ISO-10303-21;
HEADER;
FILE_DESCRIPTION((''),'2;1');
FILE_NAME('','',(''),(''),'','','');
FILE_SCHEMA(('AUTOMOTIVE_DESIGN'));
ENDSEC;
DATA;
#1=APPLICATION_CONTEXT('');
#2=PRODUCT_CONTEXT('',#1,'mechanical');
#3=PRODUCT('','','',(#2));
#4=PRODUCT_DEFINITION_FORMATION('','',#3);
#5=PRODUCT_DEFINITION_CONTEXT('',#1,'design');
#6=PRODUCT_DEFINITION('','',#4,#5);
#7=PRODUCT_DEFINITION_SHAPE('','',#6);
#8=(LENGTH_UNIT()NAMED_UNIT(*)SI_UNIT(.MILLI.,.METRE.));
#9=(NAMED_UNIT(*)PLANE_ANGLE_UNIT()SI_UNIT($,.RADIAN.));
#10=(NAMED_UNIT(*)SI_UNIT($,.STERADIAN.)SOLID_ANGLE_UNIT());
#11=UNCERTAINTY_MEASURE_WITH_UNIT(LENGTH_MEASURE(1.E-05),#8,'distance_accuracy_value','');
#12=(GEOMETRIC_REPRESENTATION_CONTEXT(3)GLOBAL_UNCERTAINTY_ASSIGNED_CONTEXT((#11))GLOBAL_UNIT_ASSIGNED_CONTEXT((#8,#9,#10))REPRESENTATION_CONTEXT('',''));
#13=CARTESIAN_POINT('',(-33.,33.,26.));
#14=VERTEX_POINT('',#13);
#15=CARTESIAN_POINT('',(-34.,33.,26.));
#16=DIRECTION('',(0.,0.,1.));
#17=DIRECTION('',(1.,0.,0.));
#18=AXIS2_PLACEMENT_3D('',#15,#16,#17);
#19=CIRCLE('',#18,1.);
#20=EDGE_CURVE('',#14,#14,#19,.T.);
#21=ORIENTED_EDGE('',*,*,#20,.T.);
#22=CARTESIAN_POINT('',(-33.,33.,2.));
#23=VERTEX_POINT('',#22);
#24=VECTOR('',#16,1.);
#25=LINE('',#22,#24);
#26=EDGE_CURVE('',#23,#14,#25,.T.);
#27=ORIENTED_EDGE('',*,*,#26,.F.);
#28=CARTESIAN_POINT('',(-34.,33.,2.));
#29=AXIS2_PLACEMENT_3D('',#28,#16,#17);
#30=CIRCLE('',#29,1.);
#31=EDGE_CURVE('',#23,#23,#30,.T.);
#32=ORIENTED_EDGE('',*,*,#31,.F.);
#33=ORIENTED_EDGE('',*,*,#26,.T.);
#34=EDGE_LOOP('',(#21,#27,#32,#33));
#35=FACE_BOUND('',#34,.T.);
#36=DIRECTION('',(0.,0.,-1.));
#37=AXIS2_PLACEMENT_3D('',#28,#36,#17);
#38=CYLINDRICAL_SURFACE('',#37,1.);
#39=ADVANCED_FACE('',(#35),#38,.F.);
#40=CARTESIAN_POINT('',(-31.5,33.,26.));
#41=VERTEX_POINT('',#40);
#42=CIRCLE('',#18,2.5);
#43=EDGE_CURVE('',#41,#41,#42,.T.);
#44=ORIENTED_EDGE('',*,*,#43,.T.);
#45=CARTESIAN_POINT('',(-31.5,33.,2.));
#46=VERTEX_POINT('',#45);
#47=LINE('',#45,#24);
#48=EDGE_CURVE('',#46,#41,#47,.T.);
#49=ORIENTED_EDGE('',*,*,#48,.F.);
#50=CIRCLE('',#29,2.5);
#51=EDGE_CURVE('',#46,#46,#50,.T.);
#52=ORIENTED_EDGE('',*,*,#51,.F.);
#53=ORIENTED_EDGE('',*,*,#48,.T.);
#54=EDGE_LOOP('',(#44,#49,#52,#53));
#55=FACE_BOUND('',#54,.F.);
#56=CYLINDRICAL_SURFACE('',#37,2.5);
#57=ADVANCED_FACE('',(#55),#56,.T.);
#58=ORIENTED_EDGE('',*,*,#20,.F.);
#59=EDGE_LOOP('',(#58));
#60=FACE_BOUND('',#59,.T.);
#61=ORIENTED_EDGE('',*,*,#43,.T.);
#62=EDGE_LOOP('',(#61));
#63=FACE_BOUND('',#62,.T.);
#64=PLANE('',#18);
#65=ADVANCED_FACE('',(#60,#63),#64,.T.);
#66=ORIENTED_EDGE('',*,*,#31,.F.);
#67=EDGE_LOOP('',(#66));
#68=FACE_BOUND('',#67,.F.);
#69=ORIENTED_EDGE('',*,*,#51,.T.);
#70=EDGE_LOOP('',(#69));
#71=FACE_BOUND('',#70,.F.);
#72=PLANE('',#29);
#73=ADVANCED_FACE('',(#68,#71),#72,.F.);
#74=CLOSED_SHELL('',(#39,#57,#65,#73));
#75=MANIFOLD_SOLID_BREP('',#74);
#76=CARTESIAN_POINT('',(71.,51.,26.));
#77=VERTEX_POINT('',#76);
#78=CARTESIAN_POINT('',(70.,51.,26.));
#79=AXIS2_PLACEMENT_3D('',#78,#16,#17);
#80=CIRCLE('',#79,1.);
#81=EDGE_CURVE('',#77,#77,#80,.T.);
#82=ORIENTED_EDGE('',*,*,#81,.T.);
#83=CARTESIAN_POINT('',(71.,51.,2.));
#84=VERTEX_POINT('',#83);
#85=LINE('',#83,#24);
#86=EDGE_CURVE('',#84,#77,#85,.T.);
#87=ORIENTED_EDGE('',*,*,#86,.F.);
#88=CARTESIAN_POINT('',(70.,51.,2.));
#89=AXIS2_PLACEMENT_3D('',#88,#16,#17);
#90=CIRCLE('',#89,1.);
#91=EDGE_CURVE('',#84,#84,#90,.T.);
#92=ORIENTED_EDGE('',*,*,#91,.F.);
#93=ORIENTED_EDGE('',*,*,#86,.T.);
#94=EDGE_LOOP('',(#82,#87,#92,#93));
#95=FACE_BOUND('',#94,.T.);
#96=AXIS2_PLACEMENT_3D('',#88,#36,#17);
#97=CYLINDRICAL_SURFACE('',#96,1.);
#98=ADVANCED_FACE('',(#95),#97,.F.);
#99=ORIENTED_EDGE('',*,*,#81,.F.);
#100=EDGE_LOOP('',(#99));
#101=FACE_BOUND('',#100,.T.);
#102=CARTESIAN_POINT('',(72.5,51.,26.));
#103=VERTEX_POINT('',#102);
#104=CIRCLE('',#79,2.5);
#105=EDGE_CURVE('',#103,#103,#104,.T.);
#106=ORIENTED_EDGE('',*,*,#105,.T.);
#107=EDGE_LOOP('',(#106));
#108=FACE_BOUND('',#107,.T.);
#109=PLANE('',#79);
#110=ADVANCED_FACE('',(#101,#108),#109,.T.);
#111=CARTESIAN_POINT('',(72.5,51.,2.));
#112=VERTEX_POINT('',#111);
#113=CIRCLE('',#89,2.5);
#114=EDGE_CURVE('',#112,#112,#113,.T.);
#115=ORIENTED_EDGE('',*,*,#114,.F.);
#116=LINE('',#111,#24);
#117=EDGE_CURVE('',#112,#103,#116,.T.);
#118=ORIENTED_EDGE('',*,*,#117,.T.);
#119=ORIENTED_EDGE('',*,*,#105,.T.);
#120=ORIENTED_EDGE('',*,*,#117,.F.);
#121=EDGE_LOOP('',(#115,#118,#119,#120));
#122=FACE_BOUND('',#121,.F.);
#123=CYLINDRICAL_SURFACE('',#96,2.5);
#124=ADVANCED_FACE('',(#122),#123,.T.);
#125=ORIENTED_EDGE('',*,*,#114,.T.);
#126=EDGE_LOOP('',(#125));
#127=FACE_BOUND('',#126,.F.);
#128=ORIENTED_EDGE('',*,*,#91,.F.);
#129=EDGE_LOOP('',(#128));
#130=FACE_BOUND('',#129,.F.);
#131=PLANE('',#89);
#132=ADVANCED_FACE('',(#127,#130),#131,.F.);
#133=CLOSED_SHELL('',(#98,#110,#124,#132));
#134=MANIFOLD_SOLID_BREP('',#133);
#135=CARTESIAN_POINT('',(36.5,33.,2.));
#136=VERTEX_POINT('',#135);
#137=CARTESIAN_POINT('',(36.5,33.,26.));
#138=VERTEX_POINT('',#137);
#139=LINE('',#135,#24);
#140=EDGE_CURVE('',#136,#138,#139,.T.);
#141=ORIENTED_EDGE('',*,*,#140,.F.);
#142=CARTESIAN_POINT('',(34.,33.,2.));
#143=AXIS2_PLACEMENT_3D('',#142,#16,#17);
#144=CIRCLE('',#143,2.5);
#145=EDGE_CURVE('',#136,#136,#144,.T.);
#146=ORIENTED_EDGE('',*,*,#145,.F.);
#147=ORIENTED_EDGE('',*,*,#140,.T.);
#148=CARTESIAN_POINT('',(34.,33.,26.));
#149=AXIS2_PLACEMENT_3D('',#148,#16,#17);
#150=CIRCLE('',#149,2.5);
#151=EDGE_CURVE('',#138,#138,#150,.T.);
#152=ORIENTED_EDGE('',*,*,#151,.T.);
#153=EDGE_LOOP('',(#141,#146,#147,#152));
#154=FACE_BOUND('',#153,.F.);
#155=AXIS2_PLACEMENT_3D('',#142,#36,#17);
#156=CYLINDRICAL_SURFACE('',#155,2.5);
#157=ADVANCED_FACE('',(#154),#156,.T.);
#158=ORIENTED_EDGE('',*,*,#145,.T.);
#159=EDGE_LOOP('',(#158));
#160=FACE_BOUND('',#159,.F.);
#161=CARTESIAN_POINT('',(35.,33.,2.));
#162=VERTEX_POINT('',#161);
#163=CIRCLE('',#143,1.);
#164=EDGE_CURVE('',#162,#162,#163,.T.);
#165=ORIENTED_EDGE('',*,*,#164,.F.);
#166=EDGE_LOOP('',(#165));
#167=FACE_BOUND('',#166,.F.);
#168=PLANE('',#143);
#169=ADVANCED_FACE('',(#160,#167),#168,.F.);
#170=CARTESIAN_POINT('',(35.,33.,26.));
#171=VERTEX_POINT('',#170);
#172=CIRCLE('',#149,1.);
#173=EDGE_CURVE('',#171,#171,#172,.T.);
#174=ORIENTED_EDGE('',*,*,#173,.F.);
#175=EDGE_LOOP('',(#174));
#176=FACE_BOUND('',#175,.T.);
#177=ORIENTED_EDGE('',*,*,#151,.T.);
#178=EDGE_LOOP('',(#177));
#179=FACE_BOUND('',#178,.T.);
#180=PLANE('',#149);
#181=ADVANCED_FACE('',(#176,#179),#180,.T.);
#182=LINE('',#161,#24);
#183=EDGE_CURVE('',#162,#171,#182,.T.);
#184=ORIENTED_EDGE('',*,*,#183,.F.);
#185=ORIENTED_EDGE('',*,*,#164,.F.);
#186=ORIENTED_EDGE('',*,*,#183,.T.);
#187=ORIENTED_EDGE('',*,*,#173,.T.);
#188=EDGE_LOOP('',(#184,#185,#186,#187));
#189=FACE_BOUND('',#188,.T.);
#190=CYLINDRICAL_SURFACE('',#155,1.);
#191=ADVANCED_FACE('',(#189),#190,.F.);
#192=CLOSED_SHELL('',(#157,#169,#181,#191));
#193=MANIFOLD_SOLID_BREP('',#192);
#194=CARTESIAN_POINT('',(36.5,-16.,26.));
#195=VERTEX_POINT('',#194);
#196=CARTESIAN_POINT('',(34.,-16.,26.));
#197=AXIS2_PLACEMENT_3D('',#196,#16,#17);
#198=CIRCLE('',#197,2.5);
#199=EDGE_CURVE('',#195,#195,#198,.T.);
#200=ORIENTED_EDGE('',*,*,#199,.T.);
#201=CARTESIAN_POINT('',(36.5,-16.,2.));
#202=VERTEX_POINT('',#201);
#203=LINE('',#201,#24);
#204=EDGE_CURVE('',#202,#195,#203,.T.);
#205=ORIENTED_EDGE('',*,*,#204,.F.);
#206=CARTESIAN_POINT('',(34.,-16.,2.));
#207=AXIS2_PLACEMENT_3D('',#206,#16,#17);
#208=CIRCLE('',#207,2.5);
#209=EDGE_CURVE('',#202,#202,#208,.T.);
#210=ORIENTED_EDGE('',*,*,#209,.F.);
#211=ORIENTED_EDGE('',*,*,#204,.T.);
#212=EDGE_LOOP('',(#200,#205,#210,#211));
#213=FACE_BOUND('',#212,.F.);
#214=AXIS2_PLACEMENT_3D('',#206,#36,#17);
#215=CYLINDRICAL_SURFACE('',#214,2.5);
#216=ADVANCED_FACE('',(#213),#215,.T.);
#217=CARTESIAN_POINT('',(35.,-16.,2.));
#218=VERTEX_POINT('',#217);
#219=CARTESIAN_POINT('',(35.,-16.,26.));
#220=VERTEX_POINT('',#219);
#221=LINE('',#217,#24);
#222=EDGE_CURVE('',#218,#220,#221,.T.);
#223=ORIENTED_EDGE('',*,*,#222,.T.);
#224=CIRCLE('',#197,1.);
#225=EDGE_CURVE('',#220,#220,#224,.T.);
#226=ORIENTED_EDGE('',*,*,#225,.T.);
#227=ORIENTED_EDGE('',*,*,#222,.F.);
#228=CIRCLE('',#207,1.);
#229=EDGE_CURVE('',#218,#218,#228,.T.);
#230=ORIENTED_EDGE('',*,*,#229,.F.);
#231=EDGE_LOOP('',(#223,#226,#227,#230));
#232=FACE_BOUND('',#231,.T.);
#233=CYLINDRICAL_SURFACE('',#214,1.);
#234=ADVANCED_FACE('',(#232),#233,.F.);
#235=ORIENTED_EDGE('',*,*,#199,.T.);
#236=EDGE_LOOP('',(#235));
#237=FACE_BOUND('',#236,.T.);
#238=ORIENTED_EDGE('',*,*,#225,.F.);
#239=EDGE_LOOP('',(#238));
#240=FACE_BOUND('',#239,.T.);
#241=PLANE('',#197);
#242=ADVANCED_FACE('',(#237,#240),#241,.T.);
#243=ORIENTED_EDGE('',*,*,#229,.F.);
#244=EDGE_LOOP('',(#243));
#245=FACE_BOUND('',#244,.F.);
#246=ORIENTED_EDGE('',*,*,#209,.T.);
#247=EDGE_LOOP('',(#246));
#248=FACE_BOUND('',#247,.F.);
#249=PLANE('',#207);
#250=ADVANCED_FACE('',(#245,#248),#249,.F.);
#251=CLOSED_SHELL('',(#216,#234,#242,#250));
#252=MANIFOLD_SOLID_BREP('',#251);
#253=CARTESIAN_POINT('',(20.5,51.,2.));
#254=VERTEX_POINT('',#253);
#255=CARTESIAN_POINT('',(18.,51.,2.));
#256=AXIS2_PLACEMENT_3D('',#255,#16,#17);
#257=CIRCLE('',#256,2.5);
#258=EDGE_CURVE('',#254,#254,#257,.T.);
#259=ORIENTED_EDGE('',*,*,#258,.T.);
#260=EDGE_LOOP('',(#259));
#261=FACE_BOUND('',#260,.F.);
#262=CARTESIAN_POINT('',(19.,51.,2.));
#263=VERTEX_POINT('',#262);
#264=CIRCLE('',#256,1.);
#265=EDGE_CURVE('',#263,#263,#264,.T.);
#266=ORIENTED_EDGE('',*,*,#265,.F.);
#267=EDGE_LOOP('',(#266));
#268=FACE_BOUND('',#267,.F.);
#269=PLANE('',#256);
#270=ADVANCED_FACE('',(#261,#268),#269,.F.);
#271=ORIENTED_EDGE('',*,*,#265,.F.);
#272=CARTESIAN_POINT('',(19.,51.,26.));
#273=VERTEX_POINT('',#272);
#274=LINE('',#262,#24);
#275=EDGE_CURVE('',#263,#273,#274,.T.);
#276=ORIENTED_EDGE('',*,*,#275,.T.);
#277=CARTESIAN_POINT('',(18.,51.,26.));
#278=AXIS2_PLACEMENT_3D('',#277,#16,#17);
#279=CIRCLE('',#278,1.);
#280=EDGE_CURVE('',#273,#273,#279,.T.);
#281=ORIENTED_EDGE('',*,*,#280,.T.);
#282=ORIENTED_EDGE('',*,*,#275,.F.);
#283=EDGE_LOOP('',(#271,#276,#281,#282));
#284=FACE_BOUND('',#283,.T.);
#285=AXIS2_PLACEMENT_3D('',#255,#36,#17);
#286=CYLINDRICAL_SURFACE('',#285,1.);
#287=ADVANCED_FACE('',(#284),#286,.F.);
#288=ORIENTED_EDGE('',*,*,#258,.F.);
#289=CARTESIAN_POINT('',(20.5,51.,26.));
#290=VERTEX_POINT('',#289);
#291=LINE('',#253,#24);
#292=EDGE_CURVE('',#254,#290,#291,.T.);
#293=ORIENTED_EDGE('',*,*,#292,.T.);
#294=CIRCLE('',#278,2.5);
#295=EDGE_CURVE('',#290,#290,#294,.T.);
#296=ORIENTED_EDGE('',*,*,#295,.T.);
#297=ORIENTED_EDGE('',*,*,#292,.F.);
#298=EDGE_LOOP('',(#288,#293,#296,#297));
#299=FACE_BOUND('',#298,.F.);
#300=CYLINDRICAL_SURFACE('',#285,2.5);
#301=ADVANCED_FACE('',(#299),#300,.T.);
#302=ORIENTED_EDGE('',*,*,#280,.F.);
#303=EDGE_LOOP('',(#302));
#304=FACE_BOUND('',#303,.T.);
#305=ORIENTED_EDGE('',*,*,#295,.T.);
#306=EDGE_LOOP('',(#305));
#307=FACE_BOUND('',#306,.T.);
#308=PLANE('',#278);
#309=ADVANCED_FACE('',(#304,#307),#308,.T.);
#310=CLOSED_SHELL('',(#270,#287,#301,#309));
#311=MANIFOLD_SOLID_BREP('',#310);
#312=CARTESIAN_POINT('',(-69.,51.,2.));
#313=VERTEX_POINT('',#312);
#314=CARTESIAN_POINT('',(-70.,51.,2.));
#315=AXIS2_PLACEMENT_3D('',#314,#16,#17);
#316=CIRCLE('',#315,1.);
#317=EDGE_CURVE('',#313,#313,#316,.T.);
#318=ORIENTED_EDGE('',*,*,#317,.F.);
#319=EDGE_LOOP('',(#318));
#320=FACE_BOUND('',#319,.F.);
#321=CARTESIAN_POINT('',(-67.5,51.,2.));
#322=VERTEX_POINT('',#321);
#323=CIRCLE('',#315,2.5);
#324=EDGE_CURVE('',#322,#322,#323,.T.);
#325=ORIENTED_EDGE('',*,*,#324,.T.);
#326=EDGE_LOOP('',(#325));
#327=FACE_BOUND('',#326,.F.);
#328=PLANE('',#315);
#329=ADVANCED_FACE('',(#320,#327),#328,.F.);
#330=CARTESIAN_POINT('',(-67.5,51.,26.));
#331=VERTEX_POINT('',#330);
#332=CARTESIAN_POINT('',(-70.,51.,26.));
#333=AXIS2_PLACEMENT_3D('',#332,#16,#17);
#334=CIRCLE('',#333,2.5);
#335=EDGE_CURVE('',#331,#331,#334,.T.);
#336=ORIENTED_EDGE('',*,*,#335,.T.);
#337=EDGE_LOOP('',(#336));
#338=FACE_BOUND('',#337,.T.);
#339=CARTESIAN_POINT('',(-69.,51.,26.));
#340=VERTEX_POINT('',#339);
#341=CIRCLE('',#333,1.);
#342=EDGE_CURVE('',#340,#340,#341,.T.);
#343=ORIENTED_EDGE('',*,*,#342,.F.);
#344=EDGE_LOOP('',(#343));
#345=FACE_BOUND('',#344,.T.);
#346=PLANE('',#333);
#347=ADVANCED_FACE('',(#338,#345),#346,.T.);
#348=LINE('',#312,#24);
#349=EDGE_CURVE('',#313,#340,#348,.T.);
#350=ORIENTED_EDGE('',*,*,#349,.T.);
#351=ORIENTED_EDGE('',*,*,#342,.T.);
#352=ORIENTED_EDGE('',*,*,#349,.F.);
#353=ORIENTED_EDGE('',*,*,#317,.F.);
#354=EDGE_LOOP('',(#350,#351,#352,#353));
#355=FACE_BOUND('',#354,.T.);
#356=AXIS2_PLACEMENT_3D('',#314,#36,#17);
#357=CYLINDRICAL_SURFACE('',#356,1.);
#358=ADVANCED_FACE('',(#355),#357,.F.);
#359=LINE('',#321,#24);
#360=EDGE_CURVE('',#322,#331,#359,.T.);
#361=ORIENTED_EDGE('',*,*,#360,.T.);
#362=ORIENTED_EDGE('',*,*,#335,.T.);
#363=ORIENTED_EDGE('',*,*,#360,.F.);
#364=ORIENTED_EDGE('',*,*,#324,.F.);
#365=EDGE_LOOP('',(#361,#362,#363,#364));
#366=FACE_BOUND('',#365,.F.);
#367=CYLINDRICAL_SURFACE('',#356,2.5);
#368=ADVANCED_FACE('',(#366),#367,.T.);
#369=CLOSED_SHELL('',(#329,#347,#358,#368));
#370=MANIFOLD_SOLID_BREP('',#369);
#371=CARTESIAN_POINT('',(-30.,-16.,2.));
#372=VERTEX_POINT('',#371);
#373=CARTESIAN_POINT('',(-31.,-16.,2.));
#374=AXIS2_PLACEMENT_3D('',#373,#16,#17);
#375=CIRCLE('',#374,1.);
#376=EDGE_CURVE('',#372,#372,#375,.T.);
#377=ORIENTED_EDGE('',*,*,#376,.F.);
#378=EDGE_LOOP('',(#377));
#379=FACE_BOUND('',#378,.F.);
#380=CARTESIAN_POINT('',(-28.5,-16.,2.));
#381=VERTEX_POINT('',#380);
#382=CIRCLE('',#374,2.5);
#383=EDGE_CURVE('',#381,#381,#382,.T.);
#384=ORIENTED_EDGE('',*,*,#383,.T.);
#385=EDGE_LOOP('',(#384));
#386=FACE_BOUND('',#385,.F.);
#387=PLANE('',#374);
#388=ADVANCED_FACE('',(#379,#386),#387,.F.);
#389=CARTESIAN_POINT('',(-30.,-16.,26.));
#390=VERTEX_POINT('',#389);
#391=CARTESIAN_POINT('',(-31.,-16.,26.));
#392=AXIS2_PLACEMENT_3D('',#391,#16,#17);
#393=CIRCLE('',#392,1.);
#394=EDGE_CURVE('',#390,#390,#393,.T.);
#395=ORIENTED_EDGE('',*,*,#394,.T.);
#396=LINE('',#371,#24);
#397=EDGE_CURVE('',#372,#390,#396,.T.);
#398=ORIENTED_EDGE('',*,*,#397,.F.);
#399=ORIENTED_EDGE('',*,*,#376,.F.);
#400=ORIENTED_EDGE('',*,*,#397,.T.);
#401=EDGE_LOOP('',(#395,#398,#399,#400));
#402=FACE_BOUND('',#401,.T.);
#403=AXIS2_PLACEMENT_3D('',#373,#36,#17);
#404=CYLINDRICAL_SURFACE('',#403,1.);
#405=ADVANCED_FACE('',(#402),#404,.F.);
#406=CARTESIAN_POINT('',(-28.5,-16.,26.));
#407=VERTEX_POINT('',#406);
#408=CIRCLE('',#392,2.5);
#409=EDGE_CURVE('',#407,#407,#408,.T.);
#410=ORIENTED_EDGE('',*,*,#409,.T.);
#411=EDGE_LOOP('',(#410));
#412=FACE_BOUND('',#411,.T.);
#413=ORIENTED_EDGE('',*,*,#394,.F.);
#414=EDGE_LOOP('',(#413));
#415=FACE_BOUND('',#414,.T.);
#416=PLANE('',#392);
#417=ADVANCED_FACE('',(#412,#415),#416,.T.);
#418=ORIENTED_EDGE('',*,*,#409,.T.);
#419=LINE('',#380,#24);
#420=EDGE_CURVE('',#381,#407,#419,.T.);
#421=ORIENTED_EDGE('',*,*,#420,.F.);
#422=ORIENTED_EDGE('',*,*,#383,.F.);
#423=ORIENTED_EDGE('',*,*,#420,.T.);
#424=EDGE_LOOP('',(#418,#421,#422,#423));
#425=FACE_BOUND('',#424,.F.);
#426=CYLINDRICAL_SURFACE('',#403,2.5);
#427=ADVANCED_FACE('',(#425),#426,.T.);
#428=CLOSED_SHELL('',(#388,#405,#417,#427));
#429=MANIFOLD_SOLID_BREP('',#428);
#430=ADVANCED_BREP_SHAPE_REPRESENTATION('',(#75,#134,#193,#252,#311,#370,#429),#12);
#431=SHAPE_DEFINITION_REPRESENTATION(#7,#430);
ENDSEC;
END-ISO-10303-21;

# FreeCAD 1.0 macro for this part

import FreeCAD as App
import Part
import Sketcher
Q = App.Units.Quantity

doc = App.newDocument("Part")
body = doc.addObject("PartDesign::Body", "Body")

# Sketch on XY plane
sketch1 = body.newObject("Sketcher::SketchObject", "Sketch")
sketch1.AttachmentSupport = (doc.getObject("XY_Plane"), [""])
sketch1.MapMode = "FlatFace"
sketch1.AttachmentOffset = App.Placement(App.Vector(0, 0, 2), App.Rotation())
sketch1.addGeometry([
    Part.Circle(App.Vector(34, -16, 0), App.Vector(0, 0, 1), 2.5),
    Part.Circle(App.Vector(34, -16, 0), App.Vector(0, 0, 1), 1),
], False)
sketch1.addConstraint([
    Sketcher.Constraint("Coincident", 1, 3, 0, 3),
    Sketcher.Constraint("Diameter", 0, Q("5 mm")),
    Sketcher.Constraint("Diameter", 1, Q("2 mm")),
    Sketcher.Constraint("DistanceX", -1, 1, 0, 3, Q("34 mm")),
    Sketcher.Constraint("DistanceY", 0, 3, -1, 1, Q("16 mm")),
])
pad1 = body.newObject("PartDesign::Pad", "Pad")
pad1.Profile = sketch1
pad1.Length = 24
body2 = doc.addObject("PartDesign::Body", "Body001")

# Sketch on XY plane
sketch2 = body2.newObject("Sketcher::SketchObject", "Sketch001")
sketch2.AttachmentSupport = (doc.getObject("XY_Plane001"), [""])
sketch2.MapMode = "FlatFace"
sketch2.AttachmentOffset = App.Placement(App.Vector(0, 0, 2), App.Rotation())
sketch2.addGeometry([
    Part.Circle(App.Vector(-31, -16, 0), App.Vector(0, 0, 1), 2.5),
    Part.Circle(App.Vector(-31, -16, 0), App.Vector(0, 0, 1), 1),
], False)
sketch2.addConstraint([
    Sketcher.Constraint("Coincident", 1, 3, 0, 3),
    Sketcher.Constraint("Diameter", 0, Q("5 mm")),
    Sketcher.Constraint("Diameter", 1, Q("2 mm")),
    Sketcher.Constraint("DistanceX", 0, 3, -1, 1, Q("31 mm")),
    Sketcher.Constraint("DistanceY", 0, 3, -1, 1, Q("16 mm")),
])
pad2 = body2.newObject("PartDesign::Pad", "Pad001")
pad2.Profile = sketch2
pad2.Length = 24
body3 = doc.addObject("PartDesign::Body", "Body002")

# Sketch on XY plane
sketch3 = body3.newObject("Sketcher::SketchObject", "Sketch002")
sketch3.AttachmentSupport = (doc.getObject("XY_Plane002"), [""])
sketch3.MapMode = "FlatFace"
sketch3.AttachmentOffset = App.Placement(App.Vector(0, 0, 2), App.Rotation())
sketch3.addGeometry([
    Part.Circle(App.Vector(34, 33, 0), App.Vector(0, 0, 1), 2.5),
    Part.Circle(App.Vector(34, 33, 0), App.Vector(0, 0, 1), 1),
], False)
sketch3.addConstraint([
    Sketcher.Constraint("Coincident", 1, 3, 0, 3),
    Sketcher.Constraint("Diameter", 0, Q("5 mm")),
    Sketcher.Constraint("Diameter", 1, Q("2 mm")),
    Sketcher.Constraint("DistanceX", -1, 1, 0, 3, Q("34 mm")),
    Sketcher.Constraint("DistanceY", -1, 1, 0, 3, Q("33 mm")),
])
pad3 = body3.newObject("PartDesign::Pad", "Pad002")
pad3.Profile = sketch3
pad3.Length = 24
body4 = doc.addObject("PartDesign::Body", "Body003")

# Sketch on XY plane
sketch4 = body4.newObject("Sketcher::SketchObject", "Sketch003")
sketch4.AttachmentSupport = (doc.getObject("XY_Plane003"), [""])
sketch4.MapMode = "FlatFace"
sketch4.AttachmentOffset = App.Placement(App.Vector(0, 0, 2), App.Rotation())
sketch4.addGeometry([
    Part.Circle(App.Vector(-34, 33, 0), App.Vector(0, 0, 1), 2.5),
    Part.Circle(App.Vector(-34, 33, 0), App.Vector(0, 0, 1), 1),
], False)
sketch4.addConstraint([
    Sketcher.Constraint("Coincident", 1, 3, 0, 3),
    Sketcher.Constraint("Diameter", 0, Q("5 mm")),
    Sketcher.Constraint("Diameter", 1, Q("2 mm")),
    Sketcher.Constraint("DistanceX", 0, 3, -1, 1, Q("34 mm")),
    Sketcher.Constraint("DistanceY", -1, 1, 0, 3, Q("33 mm")),
])
pad4 = body4.newObject("PartDesign::Pad", "Pad003")
pad4.Profile = sketch4
pad4.Length = 24
body5 = doc.addObject("PartDesign::Body", "Body004")

# Sketch on XY plane
sketch5 = body5.newObject("Sketcher::SketchObject", "Sketch004")
sketch5.AttachmentSupport = (doc.getObject("XY_Plane004"), [""])
sketch5.MapMode = "FlatFace"
sketch5.AttachmentOffset = App.Placement(App.Vector(0, 0, 2), App.Rotation())
sketch5.addGeometry([
    Part.Circle(App.Vector(70, 51, 0), App.Vector(0, 0, 1), 2.5),
    Part.Circle(App.Vector(70, 51, 0), App.Vector(0, 0, 1), 1),
], False)
sketch5.addConstraint([
    Sketcher.Constraint("Coincident", 1, 3, 0, 3),
    Sketcher.Constraint("Diameter", 0, Q("5 mm")),
    Sketcher.Constraint("Diameter", 1, Q("2 mm")),
    Sketcher.Constraint("DistanceX", -1, 1, 0, 3, Q("70 mm")),
    Sketcher.Constraint("DistanceY", -1, 1, 0, 3, Q("51 mm")),
])
pad5 = body5.newObject("PartDesign::Pad", "Pad004")
pad5.Profile = sketch5
pad5.Length = 24
body6 = doc.addObject("PartDesign::Body", "Body005")

# Sketch on XY plane
sketch6 = body6.newObject("Sketcher::SketchObject", "Sketch005")
sketch6.AttachmentSupport = (doc.getObject("XY_Plane005"), [""])
sketch6.MapMode = "FlatFace"
sketch6.AttachmentOffset = App.Placement(App.Vector(0, 0, 2), App.Rotation())
sketch6.addGeometry([
    Part.Circle(App.Vector(-70, 51, 0), App.Vector(0, 0, 1), 2.5),
    Part.Circle(App.Vector(-70, 51, 0), App.Vector(0, 0, 1), 1),
], False)
sketch6.addConstraint([
    Sketcher.Constraint("Coincident", 1, 3, 0, 3),
    Sketcher.Constraint("Diameter", 0, Q("5 mm")),
    Sketcher.Constraint("Diameter", 1, Q("2 mm")),
    Sketcher.Constraint("DistanceX", 0, 3, -1, 1, Q("70 mm")),
    Sketcher.Constraint("DistanceY", -1, 1, 0, 3, Q("51 mm")),
])
pad6 = body6.newObject("PartDesign::Pad", "Pad005")
pad6.Profile = sketch6
pad6.Length = 24
body7 = doc.addObject("PartDesign::Body", "Body006")
body7.AllowCompound = True

# Sketch on XY plane
sketch7 = body7.newObject("Sketcher::SketchObject", "Sketch006")
sketch7.AttachmentSupport = (doc.getObject("XY_Plane006"), [""])
sketch7.MapMode = "FlatFace"
sketch7.AttachmentOffset = App.Placement(App.Vector(0, 0, 2), App.Rotation())
sketch7.addGeometry([
    Part.Circle(App.Vector(18, 51, 0), App.Vector(0, 0, 1), 2.5),
    Part.Circle(App.Vector(18, 51, 0), App.Vector(0, 0, 1), 1),
], False)
sketch7.addConstraint([
    Sketcher.Constraint("Coincident", 1, 3, 0, 3),
    Sketcher.Constraint("Diameter", 0, Q("5 mm")),
    Sketcher.Constraint("Diameter", 1, Q("2 mm")),
    Sketcher.Constraint("DistanceX", -1, 1, 0, 3, Q("18 mm")),
    Sketcher.Constraint("DistanceY", -1, 1, 0, 3, Q("51 mm")),
])
pad7 = body7.newObject("PartDesign::Pad", "Pad006")
pad7.Profile = sketch7
pad7.Length = 24
doc.recompute()

boolean = body7.newObject("PartDesign::Boolean", "Boolean")
boolean.Type = "Fuse"
boolean.addObjects([body])
doc.recompute()

boolean2 = body7.newObject("PartDesign::Boolean", "Boolean001")
boolean2.Type = "Fuse"
boolean2.addObjects([body2])
doc.recompute()

boolean3 = body7.newObject("PartDesign::Boolean", "Boolean002")
boolean3.Type = "Fuse"
boolean3.addObjects([body3])
doc.recompute()

boolean4 = body7.newObject("PartDesign::Boolean", "Boolean003")
boolean4.Type = "Fuse"
boolean4.addObjects([body4])
doc.recompute()

boolean5 = body7.newObject("PartDesign::Boolean", "Boolean004")
boolean5.Type = "Fuse"
boolean5.addObjects([body5])
doc.recompute()

boolean6 = body7.newObject("PartDesign::Boolean", "Boolean005")
boolean6.Type = "Fuse"
boolean6.addObjects([body6])

doc.recompute()
